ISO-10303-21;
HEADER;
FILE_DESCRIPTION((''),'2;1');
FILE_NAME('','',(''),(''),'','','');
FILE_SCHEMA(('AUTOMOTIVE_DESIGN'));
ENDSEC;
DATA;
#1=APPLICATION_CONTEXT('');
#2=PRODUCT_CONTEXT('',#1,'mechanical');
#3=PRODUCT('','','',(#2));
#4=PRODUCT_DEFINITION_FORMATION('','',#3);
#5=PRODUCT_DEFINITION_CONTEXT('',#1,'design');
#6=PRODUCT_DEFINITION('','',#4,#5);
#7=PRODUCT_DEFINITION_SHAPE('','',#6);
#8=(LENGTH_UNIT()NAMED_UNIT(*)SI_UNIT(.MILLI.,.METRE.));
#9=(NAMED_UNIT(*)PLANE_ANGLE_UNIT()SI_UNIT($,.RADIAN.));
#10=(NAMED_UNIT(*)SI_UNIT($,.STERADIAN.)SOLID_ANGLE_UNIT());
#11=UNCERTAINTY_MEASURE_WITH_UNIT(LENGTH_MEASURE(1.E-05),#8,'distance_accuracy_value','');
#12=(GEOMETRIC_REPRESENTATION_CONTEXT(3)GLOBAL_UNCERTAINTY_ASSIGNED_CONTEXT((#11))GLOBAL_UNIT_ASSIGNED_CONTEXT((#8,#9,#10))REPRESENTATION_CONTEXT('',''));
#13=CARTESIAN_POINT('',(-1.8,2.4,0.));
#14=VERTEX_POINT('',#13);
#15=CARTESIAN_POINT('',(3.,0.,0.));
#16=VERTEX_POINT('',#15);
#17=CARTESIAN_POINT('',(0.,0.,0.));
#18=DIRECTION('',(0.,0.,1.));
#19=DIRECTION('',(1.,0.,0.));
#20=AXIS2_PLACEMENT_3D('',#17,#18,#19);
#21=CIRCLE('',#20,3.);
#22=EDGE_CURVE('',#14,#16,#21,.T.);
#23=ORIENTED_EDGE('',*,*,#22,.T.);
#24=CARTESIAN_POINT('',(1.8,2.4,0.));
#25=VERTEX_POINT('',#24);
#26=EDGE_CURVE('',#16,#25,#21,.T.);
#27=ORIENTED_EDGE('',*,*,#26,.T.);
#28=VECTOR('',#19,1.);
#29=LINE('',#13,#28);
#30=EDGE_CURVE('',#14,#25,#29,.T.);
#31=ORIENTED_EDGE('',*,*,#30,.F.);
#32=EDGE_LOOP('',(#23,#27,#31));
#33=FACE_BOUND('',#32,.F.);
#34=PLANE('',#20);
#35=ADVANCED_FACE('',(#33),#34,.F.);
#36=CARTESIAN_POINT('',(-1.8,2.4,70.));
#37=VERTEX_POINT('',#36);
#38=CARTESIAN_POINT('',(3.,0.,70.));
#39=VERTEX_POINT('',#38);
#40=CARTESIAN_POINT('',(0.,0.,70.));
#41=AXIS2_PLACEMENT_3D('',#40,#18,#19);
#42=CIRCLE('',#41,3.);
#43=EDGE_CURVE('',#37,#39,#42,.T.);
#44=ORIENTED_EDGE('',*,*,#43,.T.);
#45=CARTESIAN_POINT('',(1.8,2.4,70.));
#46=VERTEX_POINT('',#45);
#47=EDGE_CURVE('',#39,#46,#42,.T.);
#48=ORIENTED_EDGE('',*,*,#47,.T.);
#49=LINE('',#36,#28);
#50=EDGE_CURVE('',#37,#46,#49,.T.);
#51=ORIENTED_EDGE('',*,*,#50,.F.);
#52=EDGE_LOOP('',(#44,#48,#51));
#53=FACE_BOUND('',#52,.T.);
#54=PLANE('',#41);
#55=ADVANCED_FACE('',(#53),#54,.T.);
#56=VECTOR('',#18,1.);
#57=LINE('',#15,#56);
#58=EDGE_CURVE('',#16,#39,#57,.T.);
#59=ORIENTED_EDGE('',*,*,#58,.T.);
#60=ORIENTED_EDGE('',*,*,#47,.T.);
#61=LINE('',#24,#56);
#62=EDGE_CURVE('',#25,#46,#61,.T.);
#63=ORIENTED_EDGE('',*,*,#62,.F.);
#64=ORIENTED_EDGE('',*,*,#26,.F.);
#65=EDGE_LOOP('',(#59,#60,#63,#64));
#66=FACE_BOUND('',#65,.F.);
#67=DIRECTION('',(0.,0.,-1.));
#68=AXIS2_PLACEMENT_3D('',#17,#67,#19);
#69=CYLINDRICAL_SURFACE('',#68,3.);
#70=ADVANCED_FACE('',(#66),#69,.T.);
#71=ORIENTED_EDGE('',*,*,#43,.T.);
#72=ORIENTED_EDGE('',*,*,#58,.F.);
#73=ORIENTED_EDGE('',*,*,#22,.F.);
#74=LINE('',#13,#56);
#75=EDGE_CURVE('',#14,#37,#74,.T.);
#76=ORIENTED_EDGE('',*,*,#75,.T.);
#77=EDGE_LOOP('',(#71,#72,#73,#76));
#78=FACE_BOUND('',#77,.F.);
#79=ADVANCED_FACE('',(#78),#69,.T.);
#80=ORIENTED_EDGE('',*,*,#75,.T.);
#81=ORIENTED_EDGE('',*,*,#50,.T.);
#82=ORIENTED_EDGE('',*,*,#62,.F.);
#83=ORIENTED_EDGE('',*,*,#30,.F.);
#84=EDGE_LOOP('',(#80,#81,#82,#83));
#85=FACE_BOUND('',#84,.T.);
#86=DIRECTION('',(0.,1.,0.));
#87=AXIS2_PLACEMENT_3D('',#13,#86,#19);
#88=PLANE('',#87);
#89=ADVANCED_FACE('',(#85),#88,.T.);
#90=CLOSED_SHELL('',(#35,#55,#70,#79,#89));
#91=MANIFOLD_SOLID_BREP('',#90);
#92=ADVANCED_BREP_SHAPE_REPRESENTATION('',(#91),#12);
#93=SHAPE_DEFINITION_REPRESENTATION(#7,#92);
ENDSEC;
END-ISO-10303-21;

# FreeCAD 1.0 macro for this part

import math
import FreeCAD as App
import Part
import Sketcher
Q = App.Units.Quantity

doc = App.newDocument("Part")
body = doc.addObject("PartDesign::Body", "Body")

# Sketch on XY plane
sketch1 = body.newObject("Sketcher::SketchObject", "Sketch")
sketch1.AttachmentSupport = (doc.getObject("XY_Plane"), [""])
sketch1.MapMode = "FlatFace"
sketch1.addGeometry(Part.ArcOfCircle(Part.Circle(App.Vector(0, 0, 0), App.Vector(0, 0, 1), 3), math.radians(126.869898), math.radians(413.130102)), False)
sketch1.addGeometry(Part.LineSegment(App.Vector(1.8, 2.4, 0), App.Vector(-1.8, 2.4, 0)), False)
sketch1.addConstraint(Sketcher.Constraint("Coincident", 0, 1, 1, 2))
sketch1.addConstraint(Sketcher.Constraint("Coincident", 1, 1, 0, 2))
sketch1.addConstraint(Sketcher.Constraint("Horizontal", 1))
sketch1.addConstraint(Sketcher.Constraint("Coincident", 0, 3, -1, 1))
sketch1.addConstraint(Sketcher.Constraint("Radius", 0, Q("3 mm")))
sketch1.addConstraint(Sketcher.Constraint("DistanceX", 1, 2, 1, 1, Q("3.6 mm")))
pad1 = body.newObject("PartDesign::Pad", "Pad")
pad1.Profile = sketch1
pad1.Length = 70

doc.recompute()
